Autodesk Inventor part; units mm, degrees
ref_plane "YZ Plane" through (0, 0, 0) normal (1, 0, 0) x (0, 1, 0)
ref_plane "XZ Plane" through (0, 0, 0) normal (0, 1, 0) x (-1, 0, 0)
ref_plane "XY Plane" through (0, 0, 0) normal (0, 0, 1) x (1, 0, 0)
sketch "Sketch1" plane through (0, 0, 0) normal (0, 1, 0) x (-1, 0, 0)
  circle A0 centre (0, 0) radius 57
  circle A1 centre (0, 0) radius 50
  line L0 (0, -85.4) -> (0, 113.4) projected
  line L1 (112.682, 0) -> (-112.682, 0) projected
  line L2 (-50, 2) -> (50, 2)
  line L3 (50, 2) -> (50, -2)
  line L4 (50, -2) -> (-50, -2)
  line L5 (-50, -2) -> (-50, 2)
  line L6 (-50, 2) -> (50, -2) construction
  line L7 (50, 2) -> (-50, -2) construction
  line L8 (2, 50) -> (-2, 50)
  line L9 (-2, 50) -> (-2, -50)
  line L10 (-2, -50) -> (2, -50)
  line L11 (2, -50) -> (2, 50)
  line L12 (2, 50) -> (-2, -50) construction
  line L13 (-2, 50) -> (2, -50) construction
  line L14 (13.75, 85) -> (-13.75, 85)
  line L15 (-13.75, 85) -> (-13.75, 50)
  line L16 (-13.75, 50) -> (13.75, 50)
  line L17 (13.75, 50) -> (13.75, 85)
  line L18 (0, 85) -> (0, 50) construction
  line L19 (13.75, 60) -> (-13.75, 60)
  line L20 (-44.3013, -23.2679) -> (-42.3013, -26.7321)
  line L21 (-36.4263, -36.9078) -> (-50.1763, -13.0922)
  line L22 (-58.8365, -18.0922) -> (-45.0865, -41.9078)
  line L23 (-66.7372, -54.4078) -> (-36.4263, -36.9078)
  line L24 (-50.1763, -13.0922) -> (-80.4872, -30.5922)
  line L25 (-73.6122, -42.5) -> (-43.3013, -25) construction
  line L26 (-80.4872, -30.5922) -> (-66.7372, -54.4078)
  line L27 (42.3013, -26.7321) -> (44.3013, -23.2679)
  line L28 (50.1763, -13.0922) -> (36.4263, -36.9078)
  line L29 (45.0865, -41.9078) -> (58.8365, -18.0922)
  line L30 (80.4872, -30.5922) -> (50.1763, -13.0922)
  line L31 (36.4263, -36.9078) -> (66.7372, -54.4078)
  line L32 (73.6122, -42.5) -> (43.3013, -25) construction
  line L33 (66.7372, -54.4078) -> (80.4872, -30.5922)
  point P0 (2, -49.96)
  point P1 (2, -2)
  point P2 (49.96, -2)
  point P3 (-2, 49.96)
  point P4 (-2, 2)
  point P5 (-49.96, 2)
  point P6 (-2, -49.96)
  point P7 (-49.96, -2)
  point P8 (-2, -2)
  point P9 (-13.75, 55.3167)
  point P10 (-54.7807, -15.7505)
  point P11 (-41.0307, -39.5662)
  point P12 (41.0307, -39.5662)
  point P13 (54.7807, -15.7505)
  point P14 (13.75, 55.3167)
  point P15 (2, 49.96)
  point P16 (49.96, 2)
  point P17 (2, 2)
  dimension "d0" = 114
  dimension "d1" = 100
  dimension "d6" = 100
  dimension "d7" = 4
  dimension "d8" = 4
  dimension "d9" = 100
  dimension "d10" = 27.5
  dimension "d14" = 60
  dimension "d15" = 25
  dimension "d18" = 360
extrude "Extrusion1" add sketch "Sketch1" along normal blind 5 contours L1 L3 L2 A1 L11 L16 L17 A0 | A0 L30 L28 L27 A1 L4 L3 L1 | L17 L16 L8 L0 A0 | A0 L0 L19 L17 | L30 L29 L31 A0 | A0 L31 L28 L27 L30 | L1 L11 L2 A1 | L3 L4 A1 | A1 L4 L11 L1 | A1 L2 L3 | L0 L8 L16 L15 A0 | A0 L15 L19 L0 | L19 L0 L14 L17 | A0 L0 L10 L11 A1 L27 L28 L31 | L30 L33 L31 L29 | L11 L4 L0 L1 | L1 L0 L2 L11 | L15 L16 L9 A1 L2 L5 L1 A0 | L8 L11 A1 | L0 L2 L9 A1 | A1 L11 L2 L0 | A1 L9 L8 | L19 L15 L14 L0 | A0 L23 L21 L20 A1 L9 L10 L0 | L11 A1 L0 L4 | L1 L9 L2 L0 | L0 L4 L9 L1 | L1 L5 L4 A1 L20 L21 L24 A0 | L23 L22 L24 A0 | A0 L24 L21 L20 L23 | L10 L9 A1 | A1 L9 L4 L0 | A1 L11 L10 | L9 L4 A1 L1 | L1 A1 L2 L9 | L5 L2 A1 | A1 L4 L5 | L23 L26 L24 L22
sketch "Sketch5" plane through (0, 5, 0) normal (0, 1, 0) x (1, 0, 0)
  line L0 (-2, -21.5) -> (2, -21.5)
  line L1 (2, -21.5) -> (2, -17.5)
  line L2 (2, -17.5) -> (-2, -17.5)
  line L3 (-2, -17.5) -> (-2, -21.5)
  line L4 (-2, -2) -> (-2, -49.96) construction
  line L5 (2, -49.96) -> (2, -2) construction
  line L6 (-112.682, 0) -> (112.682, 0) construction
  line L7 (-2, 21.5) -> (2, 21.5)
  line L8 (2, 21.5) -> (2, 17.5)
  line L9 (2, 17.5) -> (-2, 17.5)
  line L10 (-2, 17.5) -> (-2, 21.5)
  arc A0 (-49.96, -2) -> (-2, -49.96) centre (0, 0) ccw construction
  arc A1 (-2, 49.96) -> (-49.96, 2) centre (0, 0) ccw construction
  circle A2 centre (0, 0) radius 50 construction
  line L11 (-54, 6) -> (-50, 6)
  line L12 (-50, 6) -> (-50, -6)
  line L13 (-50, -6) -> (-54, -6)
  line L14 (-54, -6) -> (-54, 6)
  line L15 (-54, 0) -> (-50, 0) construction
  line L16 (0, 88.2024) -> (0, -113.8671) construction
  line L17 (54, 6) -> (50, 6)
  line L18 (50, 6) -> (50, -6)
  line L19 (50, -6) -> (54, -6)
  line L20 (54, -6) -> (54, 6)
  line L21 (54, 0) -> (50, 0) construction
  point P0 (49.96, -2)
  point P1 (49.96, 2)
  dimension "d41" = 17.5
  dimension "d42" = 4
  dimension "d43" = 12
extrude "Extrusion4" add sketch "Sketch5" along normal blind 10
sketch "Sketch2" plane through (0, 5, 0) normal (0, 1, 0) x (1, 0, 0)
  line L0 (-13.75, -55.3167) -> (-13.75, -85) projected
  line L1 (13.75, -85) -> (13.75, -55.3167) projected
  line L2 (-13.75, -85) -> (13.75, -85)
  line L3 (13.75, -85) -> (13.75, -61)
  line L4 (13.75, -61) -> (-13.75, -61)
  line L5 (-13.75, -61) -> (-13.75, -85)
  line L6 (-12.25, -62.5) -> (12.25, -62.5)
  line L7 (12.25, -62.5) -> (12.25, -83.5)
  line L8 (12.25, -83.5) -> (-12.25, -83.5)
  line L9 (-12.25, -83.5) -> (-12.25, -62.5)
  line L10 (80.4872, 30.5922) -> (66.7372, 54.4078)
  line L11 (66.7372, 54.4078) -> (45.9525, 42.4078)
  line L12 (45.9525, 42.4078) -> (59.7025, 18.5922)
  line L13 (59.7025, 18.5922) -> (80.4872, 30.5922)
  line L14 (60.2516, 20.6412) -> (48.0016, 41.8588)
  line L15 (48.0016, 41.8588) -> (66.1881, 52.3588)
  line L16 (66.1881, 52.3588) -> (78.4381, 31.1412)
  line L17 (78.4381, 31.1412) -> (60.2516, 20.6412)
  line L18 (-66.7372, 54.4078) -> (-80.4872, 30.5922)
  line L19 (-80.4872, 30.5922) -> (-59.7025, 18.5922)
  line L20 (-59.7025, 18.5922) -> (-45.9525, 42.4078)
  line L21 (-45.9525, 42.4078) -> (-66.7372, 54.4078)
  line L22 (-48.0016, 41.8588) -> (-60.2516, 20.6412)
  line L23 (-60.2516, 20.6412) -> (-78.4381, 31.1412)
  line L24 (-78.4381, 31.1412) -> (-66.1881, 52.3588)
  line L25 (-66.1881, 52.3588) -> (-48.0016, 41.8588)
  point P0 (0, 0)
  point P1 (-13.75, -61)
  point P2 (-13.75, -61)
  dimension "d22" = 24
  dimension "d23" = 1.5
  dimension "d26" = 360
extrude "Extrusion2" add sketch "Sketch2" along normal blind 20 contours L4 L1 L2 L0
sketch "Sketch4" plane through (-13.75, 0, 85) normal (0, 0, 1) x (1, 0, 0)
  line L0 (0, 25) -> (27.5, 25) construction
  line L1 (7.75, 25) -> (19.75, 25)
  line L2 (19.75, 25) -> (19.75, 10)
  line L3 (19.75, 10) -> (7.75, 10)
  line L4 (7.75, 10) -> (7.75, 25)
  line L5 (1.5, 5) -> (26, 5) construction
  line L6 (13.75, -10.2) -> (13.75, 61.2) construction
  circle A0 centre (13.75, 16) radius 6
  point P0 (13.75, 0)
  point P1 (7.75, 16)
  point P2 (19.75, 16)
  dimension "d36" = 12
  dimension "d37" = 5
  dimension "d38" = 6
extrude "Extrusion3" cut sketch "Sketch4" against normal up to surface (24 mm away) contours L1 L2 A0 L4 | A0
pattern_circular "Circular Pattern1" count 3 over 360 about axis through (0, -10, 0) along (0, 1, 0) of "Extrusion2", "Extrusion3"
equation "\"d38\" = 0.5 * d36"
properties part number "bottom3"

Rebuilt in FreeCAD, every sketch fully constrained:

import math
import FreeCAD as App
import Part
import Sketcher
Q = App.Units.Quantity


def add_polygon(sketch, points):
    """Adds a closed chain of lines whose ends are joined by coincident constraints."""
    first, n = sketch.GeometryCount, len(points)
    for a, b in zip(points, points[1:] + points[:1]):
        sketch.addGeometry(Part.LineSegment(App.Vector(*a, 0), App.Vector(*b, 0)), False)
    for i in range(n):
        sketch.addConstraint(Sketcher.Constraint("Coincident", first + i, 2, first + (i + 1) % n, 1))

doc = App.newDocument("Part")
body = doc.addObject("PartDesign::Body", "Body")

# Sketch on XZ plane
sketch1 = body.newObject("Sketcher::SketchObject", "Sketch")
sketch1.AttachmentSupport = (doc.getObject("XZ_Plane"), [""])
sketch1.MapMode = "FlatFace"
sketch1.addGeometry(Part.LineSegment(App.Vector(-13.75, 55.316702, 0), App.Vector(-13.75, 85, 0)), False)
sketch1.addGeometry(Part.LineSegment(App.Vector(-13.75, 85, 0), App.Vector(13.75, 85, 0)), False)
sketch1.addGeometry(Part.LineSegment(App.Vector(13.75, 85, 0), App.Vector(13.75, 55.316702, 0)), False)
sketch1.addGeometry(Part.ArcOfCircle(Part.Circle(App.Vector(0, 0, 0), App.Vector(0, 0, 1), 57), math.radians(-16.040995), math.radians(76.040967)), False)
sketch1.addGeometry(Part.LineSegment(App.Vector(54.780661, -15.750528, 0), App.Vector(80.4872, -30.5922, 0)), False)
sketch1.addGeometry(Part.LineSegment(App.Vector(80.4872, -30.5922, 0), App.Vector(66.7372, -54.4078, 0)), False)
sketch1.addGeometry(Part.LineSegment(App.Vector(66.7372, -54.4078, 0), App.Vector(41.030711, -39.566157, 0)), False)
sketch1.addGeometry(Part.ArcOfCircle(Part.Circle(App.Vector(0, 0, 0), App.Vector(0, 0, 1), 57), math.radians(-136.041027), math.radians(-43.958973)), False)
sketch1.addGeometry(Part.LineSegment(App.Vector(-41.030711, -39.566157, 0), App.Vector(-66.7372, -54.4078, 0)), False)
sketch1.addGeometry(Part.LineSegment(App.Vector(-66.7372, -54.4078, 0), App.Vector(-80.4872, -30.5922, 0)), False)
sketch1.addGeometry(Part.LineSegment(App.Vector(-80.4872, -30.5922, 0), App.Vector(-54.780661, -15.750528, 0)), False)
sketch1.addGeometry(Part.ArcOfCircle(Part.Circle(App.Vector(0, 0, 0), App.Vector(0, 0, 1), 57), math.radians(103.959033), math.radians(196.040995)), False)
sketch1.addGeometry(Part.ArcOfCircle(Part.Circle(App.Vector(0, 0, 0), App.Vector(0, 0, 1), 50), math.radians(92.292443), math.radians(177.707557)), False)
sketch1.addGeometry(Part.LineSegment(App.Vector(-49.959984, 2, 0), App.Vector(-2, 2, 0)), False)
sketch1.addGeometry(Part.LineSegment(App.Vector(-2, 2, 0), App.Vector(-2, 49.959984, 0)), False)
sketch1.addGeometry(Part.ArcOfCircle(Part.Circle(App.Vector(0, 0, 0), App.Vector(0, 0, 1), 50), math.radians(-177.707557), math.radians(-92.292443)), False)
sketch1.addGeometry(Part.LineSegment(App.Vector(-2, -49.959984, 0), App.Vector(-2, -2, 0)), False)
sketch1.addGeometry(Part.LineSegment(App.Vector(-2, -2, 0), App.Vector(-49.959984, -2, 0)), False)
sketch1.addGeometry(Part.LineSegment(App.Vector(2, 49.959984, 0), App.Vector(2, 2, 0)), False)
sketch1.addGeometry(Part.LineSegment(App.Vector(2, 2, 0), App.Vector(49.959984, 2, 0)), False)
sketch1.addGeometry(Part.ArcOfCircle(Part.Circle(App.Vector(0, 0, 0), App.Vector(0, 0, 1), 50), math.radians(2.292443), math.radians(87.707557)), False)
sketch1.addGeometry(Part.ArcOfCircle(Part.Circle(App.Vector(0, 0, 0), App.Vector(0, 0, 1), 50), math.radians(-87.707557), math.radians(-2.292443)), False)
sketch1.addGeometry(Part.LineSegment(App.Vector(49.959984, -2, 0), App.Vector(2, -2, 0)), False)
sketch1.addGeometry(Part.LineSegment(App.Vector(2, -2, 0), App.Vector(2, -49.959984, 0)), False)
sketch1.addConstraint(Sketcher.Constraint("Coincident", 0, 2, 1, 1))
sketch1.addConstraint(Sketcher.Constraint("Coincident", 1, 2, 2, 1))
sketch1.addConstraint(Sketcher.Constraint("Coincident", 2, 2, 3, 2))
sketch1.addConstraint(Sketcher.Constraint("Coincident", 3, 1, 4, 1))
sketch1.addConstraint(Sketcher.Constraint("Coincident", 4, 2, 5, 1))
sketch1.addConstraint(Sketcher.Constraint("Coincident", 5, 2, 6, 1))
sketch1.addConstraint(Sketcher.Constraint("Coincident", 6, 2, 7, 2))
sketch1.addConstraint(Sketcher.Constraint("Coincident", 7, 1, 8, 1))
sketch1.addConstraint(Sketcher.Constraint("Coincident", 8, 2, 9, 1))
sketch1.addConstraint(Sketcher.Constraint("Coincident", 9, 2, 10, 1))
sketch1.addConstraint(Sketcher.Constraint("Coincident", 10, 2, 11, 2))
sketch1.addConstraint(Sketcher.Constraint("Coincident", 11, 1, 0, 1))
sketch1.addConstraint(Sketcher.Constraint("Coincident", 12, 2, 13, 1))
sketch1.addConstraint(Sketcher.Constraint("Coincident", 13, 2, 14, 1))
sketch1.addConstraint(Sketcher.Constraint("Coincident", 14, 2, 12, 1))
sketch1.addConstraint(Sketcher.Constraint("Coincident", 15, 2, 16, 1))
sketch1.addConstraint(Sketcher.Constraint("Coincident", 16, 2, 17, 1))
sketch1.addConstraint(Sketcher.Constraint("Coincident", 17, 2, 15, 1))
sketch1.addConstraint(Sketcher.Constraint("Coincident", 18, 2, 19, 1))
sketch1.addConstraint(Sketcher.Constraint("Coincident", 19, 2, 20, 1))
sketch1.addConstraint(Sketcher.Constraint("Coincident", 20, 2, 18, 1))
sketch1.addConstraint(Sketcher.Constraint("Coincident", 21, 2, 22, 1))
sketch1.addConstraint(Sketcher.Constraint("Coincident", 22, 2, 23, 1))
sketch1.addConstraint(Sketcher.Constraint("Coincident", 23, 2, 21, 1))
sketch1.addConstraint(Sketcher.Constraint("Vertical", 0))
sketch1.addConstraint(Sketcher.Constraint("Horizontal", 1))
sketch1.addConstraint(Sketcher.Constraint("Vertical", 2))
sketch1.addConstraint(Sketcher.Constraint("Horizontal", 13))
sketch1.addConstraint(Sketcher.Constraint("Vertical", 14))
sketch1.addConstraint(Sketcher.Constraint("Vertical", 16))
sketch1.addConstraint(Sketcher.Constraint("Horizontal", 17))
sketch1.addConstraint(Sketcher.Constraint("Vertical", 18))
sketch1.addConstraint(Sketcher.Constraint("Horizontal", 19))
sketch1.addConstraint(Sketcher.Constraint("Horizontal", 22))
sketch1.addConstraint(Sketcher.Constraint("Vertical", 23))
sketch1.addConstraint(Sketcher.Constraint("Coincident", 3, 3, -1, 1))
sketch1.addConstraint(Sketcher.Constraint("Coincident", 7, 3, -1, 1))
sketch1.addConstraint(Sketcher.Constraint("Coincident", 11, 3, -1, 1))
sketch1.addConstraint(Sketcher.Constraint("Coincident", 12, 3, -1, 1))
sketch1.addConstraint(Sketcher.Constraint("Coincident", 15, 3, -1, 1))
sketch1.addConstraint(Sketcher.Constraint("Coincident", 20, 3, -1, 1))
sketch1.addConstraint(Sketcher.Constraint("Coincident", 21, 3, -1, 1))
sketch1.addConstraint(Sketcher.Constraint("Equal", 3, 7))
sketch1.addConstraint(Sketcher.Constraint("Equal", 7, 11))
sketch1.addConstraint(Sketcher.Constraint("Equal", 12, 15))
sketch1.addConstraint(Sketcher.Constraint("Equal", 15, 20))
sketch1.addConstraint(Sketcher.Constraint("Equal", 20, 21))
sketch1.addConstraint(Sketcher.Constraint("Symmetric", 16, 2, 18, 2, -1, 1))
sketch1.addConstraint(Sketcher.Constraint("Symmetric", 13, 2, 22, 2, -1, 1))
sketch1.addConstraint(Sketcher.Constraint("Symmetric", 5, 2, 8, 2, -2))
sketch1.addConstraint(Sketcher.Constraint("Symmetric", 4, 2, 9, 2, -2))
sketch1.addConstraint(Sketcher.Constraint("Symmetric", 13, 2, 18, 2, -2))
sketch1.addConstraint(Sketcher.Constraint("Perpendicular", 4, 5))
sketch1.addConstraint(Sketcher.Constraint("Perpendicular", 5, 6))
sketch1.addConstraint(Sketcher.Constraint("Perpendicular", 8, 9))
sketch1.addConstraint(Sketcher.Constraint("Perpendicular", 9, 10))
sketch1.addConstraint(Sketcher.Constraint("Horizontal", 2, 2, 11, 1))
sketch1.addConstraint(Sketcher.Constraint("Equal", 22, 14))
sketch1.addConstraint(Sketcher.Constraint("Equal", 4, 6))
sketch1.addConstraint(Sketcher.Constraint("Radius", 3, Q("57 mm")))
sketch1.addConstraint(Sketcher.Constraint("Radius", 12, Q("50 mm")))
sketch1.addConstraint(Sketcher.Constraint("DistanceX", 1, 1, 1, 2, Q("27.5 mm")))
sketch1.addConstraint(Sketcher.Constraint("DistanceY", 17, 2, 12, 2, Q("4 mm")))
sketch1.addConstraint(Sketcher.Constraint("Distance", 5, Q("27.5 mm")))
sketch1.addConstraint(Sketcher.Constraint("Angle", 4, Q("-30 deg")))
sketch1.addConstraint(Sketcher.Constraint("DistanceY", -1, 1, 0, 2, Q("85 mm")))
sketch1.addConstraint(Sketcher.Constraint("DistanceY", 6, 2, 4, 2, Q("8.974 mm")))
pad1 = body.newObject("PartDesign::Pad", "Pad")
pad1.Profile = sketch1
pad1.Length = 5
pad1.Reversed = True

# Sketch on XZ plane
sketch2 = body.newObject("Sketcher::SketchObject", "Sketch001")
sketch2.AttachmentSupport = (doc.getObject("XZ_Plane"), [""])
sketch2.MapMode = "FlatFace"
sketch2.AttachmentOffset = App.Placement(App.Vector(0, 0, -5), App.Rotation())
add_polygon(sketch2, [(-2, 17.5), (-2, 21.5), (2, 21.5), (2, 17.5)])  # lines 0-3
add_polygon(sketch2, [(2, -21.5), (-2, -21.5), (-2, -17.5), (2, -17.5)])  # lines 4-7
add_polygon(sketch2, [(-50, -6), (-54, -6), (-54, 6), (-50, 6)])  # lines 8-11
add_polygon(sketch2, [(54, 6), (54, -6), (50, -6), (50, 6)])  # lines 12-15
sketch2.addConstraint(Sketcher.Constraint("Vertical", 0))
sketch2.addConstraint(Sketcher.Constraint("Horizontal", 1))
sketch2.addConstraint(Sketcher.Constraint("Vertical", 2))
sketch2.addConstraint(Sketcher.Constraint("Horizontal", 3))
sketch2.addConstraint(Sketcher.Constraint("Horizontal", 4))
sketch2.addConstraint(Sketcher.Constraint("Vertical", 5))
sketch2.addConstraint(Sketcher.Constraint("Horizontal", 6))
sketch2.addConstraint(Sketcher.Constraint("Vertical", 7))
sketch2.addConstraint(Sketcher.Constraint("Horizontal", 8))
sketch2.addConstraint(Sketcher.Constraint("Vertical", 9))
sketch2.addConstraint(Sketcher.Constraint("Horizontal", 10))
sketch2.addConstraint(Sketcher.Constraint("Vertical", 11))
sketch2.addConstraint(Sketcher.Constraint("Vertical", 12))
sketch2.addConstraint(Sketcher.Constraint("Horizontal", 13))
sketch2.addConstraint(Sketcher.Constraint("Vertical", 14))
sketch2.addConstraint(Sketcher.Constraint("Horizontal", 15))
sketch2.addConstraint(Sketcher.Constraint("Symmetric", 1, 2, 4, 2, -1, 1))
sketch2.addConstraint(Sketcher.Constraint("Symmetric", 3, 2, 6, 2, -1, 1))
sketch2.addConstraint(Sketcher.Constraint("Symmetric", 9, 2, 12, 2, -1, 1))
sketch2.addConstraint(Sketcher.Constraint("Symmetric", 11, 2, 14, 2, -1, 1))
sketch2.addConstraint(Sketcher.Constraint("Horizontal", 11, 2, 12, 2))
sketch2.addConstraint(Sketcher.Constraint("Vertical", 3, 2, 4, 2))
sketch2.addConstraint(Sketcher.Constraint("Equal", 6, 8))
sketch2.addConstraint(Sketcher.Constraint("Equal", 15, 0))
sketch2.addConstraint(Sketcher.Constraint("DistanceX", 1, 1, 1, 2, Q("4 mm")))
sketch2.addConstraint(Sketcher.Constraint("DistanceY", 9, 1, 9, 2, Q("12 mm")))
sketch2.addConstraint(Sketcher.Constraint("DistanceY", -1, 1, 2, 2, Q("17.5 mm")))
sketch2.addConstraint(Sketcher.Constraint("DistanceX", 8, 2, -1, 1, Q("54 mm")))
pad2 = body.newObject("PartDesign::Pad", "Pad001")
pad2.Profile = sketch2
pad2.Length = 10
pad2.Reversed = True

# Sketch on XZ plane
sketch3 = body.newObject("Sketcher::SketchObject", "Sketch002")
sketch3.AttachmentSupport = (doc.getObject("XZ_Plane"), [""])
sketch3.MapMode = "FlatFace"
sketch3.AttachmentOffset = App.Placement(App.Vector(0, 0, -5), App.Rotation())
add_polygon(sketch3, [(13.75, 61), (-13.75, 61), (-13.75, 85), (13.75, 85)])  # lines 0-3
add_polygon(sketch3, [(-12.25, 83.5), (-12.25, 62.5), (12.25, 62.5), (12.25, 83.5)])  # lines 4-7
sketch3.addConstraint(Sketcher.Constraint("Horizontal", 0))
sketch3.addConstraint(Sketcher.Constraint("Vertical", 1))
sketch3.addConstraint(Sketcher.Constraint("Horizontal", 2))
sketch3.addConstraint(Sketcher.Constraint("Vertical", 3))
sketch3.addConstraint(Sketcher.Constraint("Vertical", 4))
sketch3.addConstraint(Sketcher.Constraint("Horizontal", 5))
sketch3.addConstraint(Sketcher.Constraint("Vertical", 6))
sketch3.addConstraint(Sketcher.Constraint("Horizontal", 7))
sketch3.addConstraint(Sketcher.Constraint("DistanceY", 1, 1, 1, 2, Q("24 mm")))
sketch3.addConstraint(Sketcher.Constraint("DistanceX", 0, 2, 4, 2, Q("1.5 mm")))
sketch3.addConstraint(Sketcher.Constraint("DistanceY", 0, 2, 4, 2, Q("1.5 mm")))
sketch3.addConstraint(Sketcher.Constraint("DistanceX", 5, 2, 3, 2, Q("1.5 mm")))
sketch3.addConstraint(Sketcher.Constraint("DistanceY", 6, 2, 2, 2, Q("1.5 mm")))
sketch3.addConstraint(Sketcher.Constraint("DistanceX", 0, 2, 0, 1, Q("27.5 mm")))
sketch3.addConstraint(Sketcher.Constraint("DistanceY", -1, 1, 0, 2, Q("61 mm")))
sketch3.addConstraint(Sketcher.Constraint("DistanceX", 0, 2, -1, 1, Q("13.75 mm")))
pad3 = body.newObject("PartDesign::Pad", "Pad002")
pad3.Profile = sketch3
pad3.Length = 20
pad3.Reversed = True

# Sketch on XY plane
sketch4 = body.newObject("Sketcher::SketchObject", "Sketch003")
sketch4.AttachmentSupport = (doc.getObject("XY_Plane"), [""])
sketch4.MapMode = "FlatFace"
sketch4.AttachmentOffset = App.Placement(App.Vector(0, 0, 85), App.Rotation())
sketch4.addGeometry(Part.LineSegment(App.Vector(6, 25, 0), App.Vector(-6, 25, 0)), False)
sketch4.addGeometry(Part.LineSegment(App.Vector(-6, 25, 0), App.Vector(-6, 16, 0)), False)
sketch4.addGeometry(Part.ArcOfCircle(Part.Circle(App.Vector(0, 16, 0), App.Vector(0, 0, 1), 6), math.radians(180), math.radians(360)), False)
sketch4.addGeometry(Part.LineSegment(App.Vector(6, 16, 0), App.Vector(6, 25, 0)), False)
sketch4.addConstraint(Sketcher.Constraint("Coincident", 0, 2, 1, 1))
sketch4.addConstraint(Sketcher.Constraint("Tangent", 1, 2, 2, 1))
sketch4.addConstraint(Sketcher.Constraint("Tangent", 2, 2, 3, 1))
sketch4.addConstraint(Sketcher.Constraint("Coincident", 3, 2, 0, 1))
sketch4.addConstraint(Sketcher.Constraint("Horizontal", 0))
sketch4.addConstraint(Sketcher.Constraint("Vertical", 1))
sketch4.addConstraint(Sketcher.Constraint("Vertical", 3))
sketch4.addConstraint(Sketcher.Constraint("PointOnObject", 2, 3, -2))
sketch4.addConstraint(Sketcher.Constraint("Radius", 2, Q("6 mm")))
sketch4.addConstraint(Sketcher.Constraint("DistanceY", 1, 2, 1, 1, Q("9 mm")))
sketch4.addConstraint(Sketcher.Constraint("DistanceY", -1, 1, 2, 3, Q("16 mm")))
pocket1 = body.newObject("PartDesign::Pocket", "Pocket")
pocket1.Profile = sketch4
pocket1.Length = 24
doc.recompute()

polarpattern = body.newObject("PartDesign::PolarPattern", "PolarPattern")
polarpattern.Originals = [pad3, pocket1]
polarpattern.Axis = (doc.getObject("Y_Axis"), [""])
polarpattern.Angle = 360
polarpattern.Occurrences = 3
body.Tip = polarpattern

doc.recompute()
